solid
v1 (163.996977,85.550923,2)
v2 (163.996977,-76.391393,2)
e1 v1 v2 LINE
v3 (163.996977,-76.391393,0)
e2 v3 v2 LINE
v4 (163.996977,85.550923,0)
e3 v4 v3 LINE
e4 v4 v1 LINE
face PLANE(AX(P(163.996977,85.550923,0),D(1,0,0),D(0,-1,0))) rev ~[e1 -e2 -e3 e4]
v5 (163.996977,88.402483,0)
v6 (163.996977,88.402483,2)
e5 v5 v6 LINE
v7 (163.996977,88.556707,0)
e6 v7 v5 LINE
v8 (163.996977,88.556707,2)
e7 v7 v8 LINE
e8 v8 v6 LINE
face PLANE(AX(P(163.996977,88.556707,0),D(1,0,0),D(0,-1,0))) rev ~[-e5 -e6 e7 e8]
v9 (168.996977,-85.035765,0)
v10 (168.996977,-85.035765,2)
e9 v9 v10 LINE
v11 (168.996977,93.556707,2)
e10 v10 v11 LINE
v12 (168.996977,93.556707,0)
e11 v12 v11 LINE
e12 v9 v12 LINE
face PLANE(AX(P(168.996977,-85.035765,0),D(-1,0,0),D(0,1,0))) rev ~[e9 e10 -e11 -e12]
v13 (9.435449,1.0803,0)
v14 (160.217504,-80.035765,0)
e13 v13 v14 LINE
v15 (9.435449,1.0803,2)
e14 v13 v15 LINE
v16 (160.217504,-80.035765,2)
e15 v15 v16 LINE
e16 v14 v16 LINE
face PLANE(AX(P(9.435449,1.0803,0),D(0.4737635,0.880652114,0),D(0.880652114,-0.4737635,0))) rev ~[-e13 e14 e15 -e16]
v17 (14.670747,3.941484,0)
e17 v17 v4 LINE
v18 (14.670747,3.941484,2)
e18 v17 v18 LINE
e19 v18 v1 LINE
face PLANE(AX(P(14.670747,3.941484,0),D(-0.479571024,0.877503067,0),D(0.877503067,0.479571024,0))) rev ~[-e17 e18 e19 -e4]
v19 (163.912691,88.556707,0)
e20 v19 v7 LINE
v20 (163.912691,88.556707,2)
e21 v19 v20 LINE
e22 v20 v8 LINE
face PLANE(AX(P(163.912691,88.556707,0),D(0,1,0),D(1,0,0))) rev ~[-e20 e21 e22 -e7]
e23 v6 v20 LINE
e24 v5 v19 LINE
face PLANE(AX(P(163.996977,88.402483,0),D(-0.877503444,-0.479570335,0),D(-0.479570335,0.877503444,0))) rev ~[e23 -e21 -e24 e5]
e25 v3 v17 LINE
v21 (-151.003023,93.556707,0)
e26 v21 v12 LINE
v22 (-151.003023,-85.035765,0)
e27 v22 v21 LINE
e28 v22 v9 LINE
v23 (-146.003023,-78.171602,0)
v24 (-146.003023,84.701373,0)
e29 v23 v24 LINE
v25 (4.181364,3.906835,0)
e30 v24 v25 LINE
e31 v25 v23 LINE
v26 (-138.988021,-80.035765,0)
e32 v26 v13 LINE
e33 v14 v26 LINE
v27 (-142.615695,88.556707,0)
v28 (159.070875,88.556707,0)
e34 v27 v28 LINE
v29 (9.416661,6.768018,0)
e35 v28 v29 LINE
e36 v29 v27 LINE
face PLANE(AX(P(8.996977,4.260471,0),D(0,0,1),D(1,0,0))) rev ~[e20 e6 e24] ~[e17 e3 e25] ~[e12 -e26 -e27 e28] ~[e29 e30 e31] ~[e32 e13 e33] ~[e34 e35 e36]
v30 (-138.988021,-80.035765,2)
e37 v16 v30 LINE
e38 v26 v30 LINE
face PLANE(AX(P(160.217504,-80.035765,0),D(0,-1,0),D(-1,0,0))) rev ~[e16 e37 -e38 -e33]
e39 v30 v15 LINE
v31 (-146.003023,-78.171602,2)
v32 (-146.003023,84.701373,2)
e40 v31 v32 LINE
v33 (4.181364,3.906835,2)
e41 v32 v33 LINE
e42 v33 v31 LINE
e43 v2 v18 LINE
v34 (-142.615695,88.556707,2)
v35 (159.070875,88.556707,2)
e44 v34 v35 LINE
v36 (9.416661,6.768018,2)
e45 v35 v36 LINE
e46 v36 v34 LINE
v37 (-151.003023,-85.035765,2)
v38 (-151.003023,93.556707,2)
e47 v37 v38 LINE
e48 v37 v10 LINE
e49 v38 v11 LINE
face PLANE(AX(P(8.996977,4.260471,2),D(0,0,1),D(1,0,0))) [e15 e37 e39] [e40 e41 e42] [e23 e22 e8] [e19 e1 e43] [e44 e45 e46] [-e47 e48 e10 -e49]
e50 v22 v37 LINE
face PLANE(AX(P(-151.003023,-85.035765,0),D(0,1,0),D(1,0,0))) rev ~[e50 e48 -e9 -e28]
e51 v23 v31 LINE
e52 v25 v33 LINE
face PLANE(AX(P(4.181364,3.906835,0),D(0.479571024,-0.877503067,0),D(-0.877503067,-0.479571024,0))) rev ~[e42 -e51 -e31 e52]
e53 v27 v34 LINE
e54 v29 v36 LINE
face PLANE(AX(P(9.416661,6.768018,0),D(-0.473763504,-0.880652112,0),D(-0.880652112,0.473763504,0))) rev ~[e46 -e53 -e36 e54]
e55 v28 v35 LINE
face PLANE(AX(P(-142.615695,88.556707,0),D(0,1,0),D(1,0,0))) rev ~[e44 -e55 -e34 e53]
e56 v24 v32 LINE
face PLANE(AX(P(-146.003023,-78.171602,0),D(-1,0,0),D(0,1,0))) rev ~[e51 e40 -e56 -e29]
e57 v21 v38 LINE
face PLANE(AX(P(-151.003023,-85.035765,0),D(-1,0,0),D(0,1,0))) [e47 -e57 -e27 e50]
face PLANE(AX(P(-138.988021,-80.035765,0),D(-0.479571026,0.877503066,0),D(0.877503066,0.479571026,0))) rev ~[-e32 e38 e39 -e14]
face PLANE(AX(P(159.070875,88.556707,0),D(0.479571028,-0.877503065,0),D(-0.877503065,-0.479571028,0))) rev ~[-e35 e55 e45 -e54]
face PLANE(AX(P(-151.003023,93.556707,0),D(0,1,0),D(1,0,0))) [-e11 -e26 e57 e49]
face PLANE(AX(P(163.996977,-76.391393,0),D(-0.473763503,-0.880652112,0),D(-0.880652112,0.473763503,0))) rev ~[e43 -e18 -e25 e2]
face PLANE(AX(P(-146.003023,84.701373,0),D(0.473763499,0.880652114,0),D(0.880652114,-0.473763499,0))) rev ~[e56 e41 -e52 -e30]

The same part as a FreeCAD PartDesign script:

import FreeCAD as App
import Part
import Sketcher
from FreeCAD import Vector

doc = App.newDocument("Part")
body = doc.addObject("PartDesign::Body", "Body")

sketch1 = body.newObject("Sketcher::SketchObject", "Sketch")
sketch1.AttachmentSupport = (doc.getObject("XY_Plane"), [""])
sketch1.MapMode = "FlatFace"
sketch1.addGeometry([
    Part.LineSegment(Vector(-151.003023, 93.556707, 0), Vector(-151.003023, -85.035765, 0)),
    Part.LineSegment(Vector(-151.003023, -85.035765, 0), Vector(168.996977, -85.035765, 0)),
    Part.LineSegment(Vector(168.996977, -85.035765, 0), Vector(168.996977, 93.556707, 0)),
    Part.LineSegment(Vector(168.996977, 93.556707, 0), Vector(-151.003023, 93.556707, 0)),
    Part.LineSegment(Vector(4.181364, 3.906835, 0), Vector(-146.003023, -78.171602, 0)),
    Part.LineSegment(Vector(-146.003023, -78.171602, 0), Vector(-146.003023, 84.701373, 0)),
    Part.LineSegment(Vector(-146.003023, 84.701373, 0), Vector(4.181364, 3.906835, 0)),
    Part.LineSegment(Vector(9.435449, 1.0803, 0), Vector(160.217504, -80.035765, 0)),
    Part.LineSegment(Vector(160.217504, -80.035765, 0), Vector(-138.988021, -80.035765, 0)),
    Part.LineSegment(Vector(-138.988021, -80.035765, 0), Vector(9.435449, 1.0803, 0)),
    Part.LineSegment(Vector(159.070875, 88.556707, 0), Vector(9.416661, 6.768018, 0)),
    Part.LineSegment(Vector(9.416661, 6.768018, 0), Vector(-142.615695, 88.556707, 0)),
    Part.LineSegment(Vector(-142.615695, 88.556707, 0), Vector(159.070875, 88.556707, 0)),
    Part.LineSegment(Vector(163.996977, -76.391393, 0), Vector(14.670747, 3.941484, 0)),
    Part.LineSegment(Vector(14.670747, 3.941484, 0), Vector(163.996977, 85.550923, 0)),
    Part.LineSegment(Vector(163.996977, 85.550923, 0), Vector(163.996977, -76.391393, 0)),
    Part.LineSegment(Vector(163.996977, 88.402483, 0), Vector(163.912691, 88.556707, 0)),
    Part.LineSegment(Vector(163.912691, 88.556707, 0), Vector(163.996977, 88.556707, 0)),
    Part.LineSegment(Vector(163.996977, 88.556707, 0), Vector(163.996977, 88.402483, 0)),
], False)
sketch1.addConstraint([
    Sketcher.Constraint("Coincident", 0, 2, 1, 1),
    Sketcher.Constraint("Coincident", 1, 2, 2, 1),
    Sketcher.Constraint("Coincident", 2, 2, 3, 1),
    Sketcher.Constraint("Coincident", 3, 2, 0, 1),
    Sketcher.Constraint("Coincident", 4, 2, 5, 1),
    Sketcher.Constraint("Coincident", 5, 2, 6, 1),
    Sketcher.Constraint("Coincident", 6, 2, 4, 1),
    Sketcher.Constraint("Coincident", 7, 2, 8, 1),
    Sketcher.Constraint("Coincident", 8, 2, 9, 1),
    Sketcher.Constraint("Coincident", 9, 2, 7, 1),
    Sketcher.Constraint("Coincident", 10, 2, 11, 1),
    Sketcher.Constraint("Coincident", 11, 2, 12, 1),
    Sketcher.Constraint("Coincident", 12, 2, 10, 1),
    Sketcher.Constraint("Coincident", 13, 2, 14, 1),
    Sketcher.Constraint("Coincident", 14, 2, 15, 1),
    Sketcher.Constraint("Coincident", 15, 2, 13, 1),
    Sketcher.Constraint("Coincident", 16, 2, 17, 1),
    Sketcher.Constraint("Coincident", 17, 2, 18, 1),
    Sketcher.Constraint("Coincident", 18, 2, 16, 1),
    Sketcher.Constraint("Vertical", 0),
    Sketcher.Constraint("Horizontal", 1),
    Sketcher.Constraint("Vertical", 2),
    Sketcher.Constraint("Horizontal", 3),
    Sketcher.Constraint("Vertical", 5),
    Sketcher.Constraint("Horizontal", 8),
    Sketcher.Constraint("Horizontal", 12),
    Sketcher.Constraint("Vertical", 15),
    Sketcher.Constraint("Horizontal", 17),
    Sketcher.Constraint("Vertical", 18),
    Sketcher.Constraint("Parallel", 6, 7),
    Sketcher.Constraint("Parallel", 4, 9),
    Sketcher.Constraint("Parallel", 9, 10),
    Sketcher.Constraint("Parallel", 7, 11),
    Sketcher.Constraint("Parallel", 11, 13),
    Sketcher.Constraint("Parallel", 10, 14),
    Sketcher.Constraint("Perpendicular", 14, 16),
    Sketcher.Constraint("Horizontal", 12, 2, 16, 2),
    Sketcher.Constraint("Vertical", 15, 2, 17, 2),
    Sketcher.Constraint("DistanceX", 1, 1, 1, 2, 320.0),
    Sketcher.Constraint("DistanceX", 0, 2, 4, 2, 5.0),
    Sketcher.Constraint("DistanceY", 1, 2, 7, 2, 5.0),
    Sketcher.Constraint("DistanceY", 11, 2, 3, 2, 5.0),
    Sketcher.Constraint("DistanceX", 14, 2, 2, 2, 5.0),
    Sketcher.Constraint("Distance", 4, 171.1497),
    Sketcher.Constraint("Distance", 6, 170.537701),
    Sketcher.Constraint("DistanceX", 12, 1, 12, 2, 301.68657),
    Sketcher.Constraint("DistanceY", 0, 2, 0, 1, 178.592472),
    Sketcher.Constraint("DistanceY", 4, 2, -1, 1, 78.171602),
    Sketcher.Constraint("DistanceY", -1, 1, 9, 2, 1.0803),
    Sketcher.Constraint("DistanceY", 0, 2, 6, 2, 88.9426),
    Sketcher.Constraint("DistanceX", 12, 2, 2, 2, 9.926102),
    Sketcher.Constraint("DistanceX", 9, 2, 13, 2, 5.235298),
    Sketcher.Constraint("DistanceY", 15, 2, 12, 2, 164.9481),
    Sketcher.Constraint("Distance", 11, 172.636111),
    Sketcher.Constraint("DistanceX", 17, 1, 17, 2, 0.084286),
    Sketcher.Constraint("DistanceY", 15, 2, 15, 1, 161.942316),
    Sketcher.Constraint("DistanceX", 8, 2, -1, 1, 138.988021),
])
pad1 = body.newObject("PartDesign::Pad", "Pad")
pad1.Profile = sketch1
pad1.Length = 2

doc.recompute()
